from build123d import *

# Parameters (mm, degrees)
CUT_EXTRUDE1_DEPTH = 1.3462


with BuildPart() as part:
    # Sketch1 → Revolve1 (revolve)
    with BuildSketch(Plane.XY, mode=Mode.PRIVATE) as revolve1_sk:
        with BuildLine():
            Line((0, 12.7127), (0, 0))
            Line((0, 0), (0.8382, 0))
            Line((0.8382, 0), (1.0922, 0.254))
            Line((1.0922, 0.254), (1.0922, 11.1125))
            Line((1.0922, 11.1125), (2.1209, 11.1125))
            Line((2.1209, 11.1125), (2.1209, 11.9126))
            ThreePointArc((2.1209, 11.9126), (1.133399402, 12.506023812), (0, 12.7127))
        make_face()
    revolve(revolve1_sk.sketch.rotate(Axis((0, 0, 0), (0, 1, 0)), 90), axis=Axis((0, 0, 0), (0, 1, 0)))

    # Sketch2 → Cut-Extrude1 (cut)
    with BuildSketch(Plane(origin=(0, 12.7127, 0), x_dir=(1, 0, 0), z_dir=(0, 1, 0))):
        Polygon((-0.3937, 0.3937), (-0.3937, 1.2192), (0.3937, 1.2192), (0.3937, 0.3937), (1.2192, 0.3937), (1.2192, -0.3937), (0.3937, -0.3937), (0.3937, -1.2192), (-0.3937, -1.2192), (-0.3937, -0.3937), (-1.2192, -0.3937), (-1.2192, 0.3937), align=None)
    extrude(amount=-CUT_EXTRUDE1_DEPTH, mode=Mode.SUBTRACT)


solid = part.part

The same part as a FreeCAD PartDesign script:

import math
import FreeCAD as App
import Part
import Sketcher
from FreeCAD import Vector
Q = App.Units.Quantity


def add_polygon(sketch, points):
    """Adds a closed chain of lines whose ends are joined by coincident constraints."""
    first, n = sketch.GeometryCount, len(points)
    for a, b in zip(points, points[1:] + points[:1]):
        sketch.addGeometry(Part.LineSegment(App.Vector(*a, 0), App.Vector(*b, 0)), False)
    for i in range(n):
        sketch.addConstraint(Sketcher.Constraint("Coincident", first + i, 2, first + (i + 1) % n, 1))

doc = App.newDocument("Part")
body = doc.addObject("PartDesign::Body", "Body")

# Sketch on XY plane
sketch1 = body.newObject("Sketcher::SketchObject", "Sketch")
sketch1.AttachmentSupport = (doc.getObject("XY_Plane"), [""])
sketch1.MapMode = "FlatFace"
sketch1.addGeometry([
    Part.LineSegment(Vector(0, 12.71, 0), Vector(0, 0, 0)),  # 0
    Part.LineSegment(Vector(0, 0, 0), Vector(0.84, 0, 0)),  # 1
    Part.LineSegment(Vector(0.84, 0, 0), Vector(1.09, 0.25, 0)),  # 2
    Part.LineSegment(Vector(1.09, 0.25, 0), Vector(1.09, 11.11, 0)),  # 3
    Part.LineSegment(Vector(1.09, 11.11, 0), Vector(2.12, 11.11, 0)),  # 4
    Part.LineSegment(Vector(2.12, 11.11, 0), Vector(2.12, 11.91, 0)),  # 5
    Part.ArcOfCircle(Part.Circle(Vector(0, 9.5, 0), Vector(0, 0, 1), 3.21), math.radians(49), math.radians(90)),  # 6
], False)
sketch1.addConstraint([
    Sketcher.Constraint("Coincident", 0, 2, 1, 1),
    Sketcher.Constraint("Coincident", 1, 2, 2, 1),
    Sketcher.Constraint("Coincident", 2, 2, 3, 1),
    Sketcher.Constraint("Coincident", 3, 2, 4, 1),
    Sketcher.Constraint("Coincident", 4, 2, 5, 1),
    Sketcher.Constraint("Coincident", 5, 2, 6, 1),
    Sketcher.Constraint("Coincident", 6, 2, 0, 1),
    Sketcher.Constraint("Vertical", 0),
    Sketcher.Constraint("Horizontal", 1),
    Sketcher.Constraint("Vertical", 3),
    Sketcher.Constraint("Horizontal", 4),
    Sketcher.Constraint("Vertical", 5),
    Sketcher.Constraint("Coincident", 0, 2, -1, 1),
    Sketcher.Constraint("PointOnObject", 6, 3, -2),
    Sketcher.Constraint("Angle", 2, Q("45 deg")),
    Sketcher.Constraint("DistanceX", 1, 1, 1, 2, Q("0.033 in")),
    Sketcher.Constraint("DistanceY", -1, 1, 2, 2, Q("0.01 in")),
    Sketcher.Constraint("DistanceX", 4, 1, 4, 2, Q("0.0405 in")),
    Sketcher.Constraint("DistanceY", 0, 2, 0, 1, Q("0.5005 in")),
    Sketcher.Constraint("DistanceY", 3, 1, 3, 2, Q("0.4275 in")),
    Sketcher.Constraint("DistanceY", 5, 1, 5, 2, Q("0.0315 in")),
])
revolution = body.newObject("PartDesign::Revolution", "Revolution")
revolution.Profile = sketch1
revolution.ReferenceAxis = (sketch1, ["V_Axis"])
revolution.Angle = 360

# Sketch on XZ plane
sketch2 = body.newObject("Sketcher::SketchObject", "Sketch001")
sketch2.AttachmentSupport = (doc.getObject("XZ_Plane"), [""])
sketch2.MapMode = "FlatFace"
sketch2.AttachmentOffset = App.Placement(Vector(0, 0, -0.5005 * 25.4), App.Rotation())
add_polygon(sketch2, [(-0.4, -1.2), (-0.4, -0.4), (-1.2, -0.4), (-1.2, 0.4), (-0.4, 0.4), (-0.4, 1.2), (0.4, 1.2), (0.4, 0.4), (1.2, 0.4), (1.2, -0.4), (0.4, -0.4), (0.4, -1.2)])  # lines 0-11
sketch2.addConstraint([
    Sketcher.Constraint("Vertical", 0),
    Sketcher.Constraint("Horizontal", 1),
    Sketcher.Constraint("Vertical", 2),
    Sketcher.Constraint("Horizontal", 3),
    Sketcher.Constraint("Vertical", 4),
    Sketcher.Constraint("Horizontal", 5),
    Sketcher.Constraint("Vertical", 6),
    Sketcher.Constraint("Horizontal", 7),
    Sketcher.Constraint("Vertical", 8),
    Sketcher.Constraint("Horizontal", 9),
    Sketcher.Constraint("Vertical", 10),
    Sketcher.Constraint("Horizontal", 11),
    Sketcher.Constraint("Symmetric", 0, 2, 6, 2, -1, 1),
    Sketcher.Constraint("Symmetric", 2, 2, 8, 2, -1, 1),
    Sketcher.Constraint("Symmetric", 4, 2, 10, 2, -1, 1),
    Sketcher.Constraint("Symmetric", 3, 2, 6, 2, -2),
    Sketcher.Constraint("Equal", 9, 0),
    Sketcher.Constraint("Equal", 11, 2),
    Sketcher.Constraint("DistanceX", 5, 1, 5, 2, Q("0.031 in")),
    Sketcher.Constraint("DistanceX", 1, 2, 1, 1, Q("0.0325 in")),
])
pocket1 = body.newObject("PartDesign::Pocket", "Pocket")
pocket1.Profile = sketch2
pocket1.Length = Q("0.053 in")
pocket1.Reversed = True

doc.recompute()
